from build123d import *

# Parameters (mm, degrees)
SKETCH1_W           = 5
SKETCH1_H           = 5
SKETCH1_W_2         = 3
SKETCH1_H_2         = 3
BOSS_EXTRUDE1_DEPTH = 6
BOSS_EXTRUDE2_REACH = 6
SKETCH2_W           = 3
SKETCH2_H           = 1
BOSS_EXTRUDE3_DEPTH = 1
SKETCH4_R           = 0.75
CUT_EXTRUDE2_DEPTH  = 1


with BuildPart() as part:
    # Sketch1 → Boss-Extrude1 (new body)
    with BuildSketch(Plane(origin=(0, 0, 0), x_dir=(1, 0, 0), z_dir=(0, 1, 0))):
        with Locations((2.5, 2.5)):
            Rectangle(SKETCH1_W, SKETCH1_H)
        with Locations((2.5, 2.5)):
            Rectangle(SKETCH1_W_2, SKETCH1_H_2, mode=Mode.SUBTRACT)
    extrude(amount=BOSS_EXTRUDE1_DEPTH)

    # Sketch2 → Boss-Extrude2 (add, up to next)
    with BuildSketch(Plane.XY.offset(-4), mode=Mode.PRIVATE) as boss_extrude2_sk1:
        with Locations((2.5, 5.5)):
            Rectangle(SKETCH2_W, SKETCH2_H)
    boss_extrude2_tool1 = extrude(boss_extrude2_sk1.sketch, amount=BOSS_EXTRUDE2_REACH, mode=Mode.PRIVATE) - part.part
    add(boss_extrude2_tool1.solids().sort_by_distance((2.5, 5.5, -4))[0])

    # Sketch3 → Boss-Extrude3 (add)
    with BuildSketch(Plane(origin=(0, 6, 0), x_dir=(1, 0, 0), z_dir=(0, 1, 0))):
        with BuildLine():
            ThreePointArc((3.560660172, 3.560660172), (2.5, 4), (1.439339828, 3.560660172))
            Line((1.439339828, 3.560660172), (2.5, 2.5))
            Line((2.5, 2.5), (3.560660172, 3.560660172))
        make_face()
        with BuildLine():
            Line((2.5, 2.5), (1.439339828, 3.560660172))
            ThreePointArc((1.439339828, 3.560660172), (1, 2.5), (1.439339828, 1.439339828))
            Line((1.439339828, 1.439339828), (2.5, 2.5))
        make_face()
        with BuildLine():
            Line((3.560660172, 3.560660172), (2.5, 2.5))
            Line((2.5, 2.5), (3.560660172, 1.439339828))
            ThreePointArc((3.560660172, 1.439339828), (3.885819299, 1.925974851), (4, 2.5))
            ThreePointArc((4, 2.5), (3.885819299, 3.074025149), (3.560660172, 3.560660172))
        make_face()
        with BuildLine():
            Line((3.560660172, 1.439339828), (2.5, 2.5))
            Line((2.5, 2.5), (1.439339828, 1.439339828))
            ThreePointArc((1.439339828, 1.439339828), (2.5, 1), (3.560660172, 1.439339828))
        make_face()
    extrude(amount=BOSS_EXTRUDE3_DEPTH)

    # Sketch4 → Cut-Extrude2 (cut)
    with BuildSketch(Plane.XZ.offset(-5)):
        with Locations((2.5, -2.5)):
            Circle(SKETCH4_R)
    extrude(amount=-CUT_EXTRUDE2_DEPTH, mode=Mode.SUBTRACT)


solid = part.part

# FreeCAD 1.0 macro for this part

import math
import FreeCAD as App
import Part
import Sketcher
from FreeCAD import Vector
Q = App.Units.Quantity

doc = App.newDocument("Part")
body = doc.addObject("PartDesign::Body", "Body")

# Sketch on XZ plane
sketch1 = body.newObject("Sketcher::SketchObject", "Sketch")
sketch1.AttachmentSupport = (doc.getObject("XZ_Plane"), [""])
sketch1.MapMode = "FlatFace"
sketch1.addGeometry([
    Part.LineSegment(Vector(0, -5, 0), Vector(0, 0, 0)),  # 0
    Part.LineSegment(Vector(0, 0, 0), Vector(5, 0, 0)),  # 1
    Part.LineSegment(Vector(5, 0, 0), Vector(5, -5, 0)),  # 2
    Part.LineSegment(Vector(5, -5, 0), Vector(0, -5, 0)),  # 3
    Part.LineSegment(Vector(4, -1, 0), Vector(1, -1, 0)),  # 4
    Part.LineSegment(Vector(1, -1, 0), Vector(1, -4, 0)),  # 5
    Part.LineSegment(Vector(1, -4, 0), Vector(4, -4, 0)),  # 6
    Part.LineSegment(Vector(4, -4, 0), Vector(4, -1, 0)),  # 7
], False)
sketch1.addConstraint([
    Sketcher.Constraint("Coincident", 0, 2, 1, 1),
    Sketcher.Constraint("Coincident", 1, 2, 2, 1),
    Sketcher.Constraint("Coincident", 2, 2, 3, 1),
    Sketcher.Constraint("Coincident", 3, 2, 0, 1),
    Sketcher.Constraint("Coincident", 4, 2, 5, 1),
    Sketcher.Constraint("Coincident", 5, 2, 6, 1),
    Sketcher.Constraint("Coincident", 6, 2, 7, 1),
    Sketcher.Constraint("Coincident", 7, 2, 4, 1),
    Sketcher.Constraint("Vertical", 0),
    Sketcher.Constraint("Horizontal", 1),
    Sketcher.Constraint("Vertical", 2),
    Sketcher.Constraint("Horizontal", 3),
    Sketcher.Constraint("Horizontal", 4),
    Sketcher.Constraint("Vertical", 5),
    Sketcher.Constraint("Horizontal", 6),
    Sketcher.Constraint("Vertical", 7),
    Sketcher.Constraint("Coincident", 0, 2, -1, 1),
    Sketcher.Constraint("Equal", 3, 0),
    Sketcher.Constraint("Equal", 6, 5),
    Sketcher.Constraint("DistanceX", 1, 1, 1, 2, Q("5 mm")),
    Sketcher.Constraint("DistanceX", 4, 2, 4, 1, Q("3 mm")),
    Sketcher.Constraint("DistanceX", -1, 1, 4, 2, Q("1 mm")),
    Sketcher.Constraint("DistanceY", 4, 2, -1, 1, Q("1 mm")),
])
pad1 = body.newObject("PartDesign::Pad", "Pad")
pad1.Profile = sketch1
pad1.Length = 6
pad1.Reversed = True

# Sketch on XY plane
sketch2 = body.newObject("Sketcher::SketchObject", "Sketch001")
sketch2.AttachmentSupport = (doc.getObject("XY_Plane"), [""])
sketch2.MapMode = "FlatFace"
sketch2.AttachmentOffset = App.Placement(Vector(0, 0, -4), App.Rotation())
sketch2.addGeometry([
    Part.LineSegment(Vector(1, 6, 0), Vector(1, 5, 0)),
    Part.LineSegment(Vector(1, 5, 0), Vector(4, 5, 0)),
    Part.LineSegment(Vector(4, 5, 0), Vector(4, 6, 0)),
    Part.LineSegment(Vector(4, 6, 0), Vector(1, 6, 0)),
], False)
sketch2.addConstraint([
    Sketcher.Constraint("Coincident", 0, 2, 1, 1),
    Sketcher.Constraint("Coincident", 1, 2, 2, 1),
    Sketcher.Constraint("Coincident", 2, 2, 3, 1),
    Sketcher.Constraint("Coincident", 3, 2, 0, 1),
    Sketcher.Constraint("Vertical", 0),
    Sketcher.Constraint("Horizontal", 1),
    Sketcher.Constraint("Vertical", 2),
    Sketcher.Constraint("Horizontal", 3),
    Sketcher.Constraint("DistanceX", 1, 1, 1, 2, Q("3 mm")),
    Sketcher.Constraint("DistanceY", 0, 2, 0, 1, Q("1 mm")),
    Sketcher.Constraint("DistanceX", -1, 1, 0, 2, Q("1 mm")),
    Sketcher.Constraint("DistanceY", -1, 1, 0, 2, Q("5 mm")),
])
pad2 = body.newObject("PartDesign::Pad", "Pad001")
pad2.Profile = sketch2
pad2.Type = "UpToFirst"

# Sketch on XZ plane
sketch3 = body.newObject("Sketcher::SketchObject", "Sketch002")
sketch3.AttachmentSupport = (doc.getObject("XZ_Plane"), [""])
sketch3.MapMode = "FlatFace"
sketch3.AttachmentOffset = App.Placement(Vector(0, 0, -6), App.Rotation())
sketch3.addGeometry([
    Part.ArcOfCircle(Part.Circle(Vector(2.5, -2.5, 0), Vector(0, 0, 1), 1.5), math.radians(45), math.radians(135)),  # 0
    Part.ArcOfCircle(Part.Circle(Vector(2.5, -2.5, 0), Vector(0, 0, 1), 1.5), math.radians(0), math.radians(45)),  # 1
    Part.ArcOfCircle(Part.Circle(Vector(2.5, -2.5, 0), Vector(0, 0, 1), 1.5), math.radians(-45), math.radians(0)),  # 2
    Part.ArcOfCircle(Part.Circle(Vector(2.5, -2.5, 0), Vector(0, 0, 1), 1.5), math.radians(-135), math.radians(-45)),  # 3
    Part.ArcOfCircle(Part.Circle(Vector(2.5, -2.5, 0), Vector(0, 0, 1), 1.5), math.radians(135), math.radians(225)),  # 4
], False)
sketch3.addConstraint([
    Sketcher.Constraint("Tangent", 0, 1, 1, 2),
    Sketcher.Constraint("Tangent", 1, 1, 2, 2),
    Sketcher.Constraint("Tangent", 2, 1, 3, 2),
    Sketcher.Constraint("Tangent", 3, 1, 4, 2),
    Sketcher.Constraint("Tangent", 4, 1, 0, 2),
    Sketcher.Constraint("Coincident", 2, 3, 0, 3),
    Sketcher.Constraint("Horizontal", 4, 3, 1, 1),
    Sketcher.Constraint("Horizontal", 2, 1, 3, 1),
    Sketcher.Constraint("Horizontal", 0, 1, 4, 1),
    Sketcher.Constraint("Vertical", 0, 1, 2, 1),
    Sketcher.Constraint("Radius", 0, Q("1.5 mm")),
    Sketcher.Constraint("DistanceX", -1, 1, 1, 1, Q("4 mm")),
    Sketcher.Constraint("DistanceY", 0, 3, -1, 1, Q("2.5 mm")),
    Sketcher.Constraint("DistanceX", -1, 1, 0, 1, Q("3.56066 mm")),
])
pad3 = body.newObject("PartDesign::Pad", "Pad002")
pad3.Profile = sketch3
pad3.Length = 1
pad3.Reversed = True

# Sketch on XZ plane
sketch4 = body.newObject("Sketcher::SketchObject", "Sketch003")
sketch4.AttachmentSupport = (doc.getObject("XZ_Plane"), [""])
sketch4.MapMode = "FlatFace"
sketch4.AttachmentOffset = App.Placement(Vector(0, 0, -5), App.Rotation())
sketch4.addGeometry(Part.Circle(Vector(2.5, -2.5, 0), Vector(0, 0, 1), 0.8), False)
sketch4.addConstraint([
    Sketcher.Constraint("Diameter", 0, Q("1.5 mm")),
    Sketcher.Constraint("DistanceX", -1, 1, 0, 3, Q("2.5 mm")),
    Sketcher.Constraint("DistanceY", 0, 3, -1, 1, Q("2.5 mm")),
])
pocket1 = body.newObject("PartDesign::Pocket", "Pocket")
pocket1.Profile = sketch4
pocket1.Length = 1

doc.recompute()
